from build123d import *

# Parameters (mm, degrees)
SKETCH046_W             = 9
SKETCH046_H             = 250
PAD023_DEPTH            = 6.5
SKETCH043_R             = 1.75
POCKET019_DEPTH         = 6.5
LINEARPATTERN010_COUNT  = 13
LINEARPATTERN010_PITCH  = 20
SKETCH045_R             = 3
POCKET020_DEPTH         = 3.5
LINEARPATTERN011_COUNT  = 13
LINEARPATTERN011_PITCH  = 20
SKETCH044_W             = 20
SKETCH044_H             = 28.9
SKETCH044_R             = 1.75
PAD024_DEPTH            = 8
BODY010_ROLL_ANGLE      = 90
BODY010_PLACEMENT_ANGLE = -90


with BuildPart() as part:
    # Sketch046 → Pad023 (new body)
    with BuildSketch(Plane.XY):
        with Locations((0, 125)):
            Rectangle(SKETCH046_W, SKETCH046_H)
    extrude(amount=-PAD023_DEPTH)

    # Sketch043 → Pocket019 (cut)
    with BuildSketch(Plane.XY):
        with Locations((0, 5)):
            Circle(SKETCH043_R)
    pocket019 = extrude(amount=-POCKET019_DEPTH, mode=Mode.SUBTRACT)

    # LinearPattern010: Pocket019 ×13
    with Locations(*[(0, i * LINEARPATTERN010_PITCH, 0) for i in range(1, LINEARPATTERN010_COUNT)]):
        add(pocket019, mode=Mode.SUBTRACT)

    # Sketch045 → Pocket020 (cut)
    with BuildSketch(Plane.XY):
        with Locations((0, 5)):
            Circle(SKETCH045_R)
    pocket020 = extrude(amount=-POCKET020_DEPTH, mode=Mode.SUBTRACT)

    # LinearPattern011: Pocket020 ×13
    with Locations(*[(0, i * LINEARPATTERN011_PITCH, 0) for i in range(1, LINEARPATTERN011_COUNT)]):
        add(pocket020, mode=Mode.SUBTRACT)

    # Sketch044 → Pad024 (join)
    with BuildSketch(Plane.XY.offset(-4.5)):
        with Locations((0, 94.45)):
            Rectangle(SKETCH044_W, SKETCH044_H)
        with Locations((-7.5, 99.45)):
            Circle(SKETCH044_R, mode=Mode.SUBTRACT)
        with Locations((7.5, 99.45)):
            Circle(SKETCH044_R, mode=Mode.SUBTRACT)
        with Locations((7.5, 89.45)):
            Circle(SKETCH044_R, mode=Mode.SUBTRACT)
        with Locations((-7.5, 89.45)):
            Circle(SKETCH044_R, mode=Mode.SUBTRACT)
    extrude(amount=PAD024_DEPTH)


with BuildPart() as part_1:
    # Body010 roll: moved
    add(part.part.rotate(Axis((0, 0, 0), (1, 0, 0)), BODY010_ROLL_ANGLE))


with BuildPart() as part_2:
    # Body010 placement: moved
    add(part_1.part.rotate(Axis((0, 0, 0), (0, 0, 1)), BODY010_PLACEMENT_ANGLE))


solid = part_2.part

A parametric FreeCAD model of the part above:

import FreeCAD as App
import Part
import Sketcher

V = App.Vector
Q = App.Units.Quantity

doc = App.newDocument("Part")
params = doc.addObject("Spreadsheet::Sheet", "Params")
for row, (alias, value) in enumerate([
    ("sketch1_width", "9 mm"),
    ("sketch1_height", "250 mm"),
    ("pad1_length", "6.5 mm"),
    ("sketch2_diameter", "3.5 mm"),
    ("pocket1_length", "6.5 mm"),
    ("linearpattern_pitch", "20 mm"),
    ("sketch3_diameter", "6 mm"),
    ("pocket2_length", "3.5 mm"),
    ("linearpattern2_pitch", "20 mm"),
    ("sketch4_diameter", "3.5 mm"),
    ("sketch4_width", "20 mm"),
    ("sketch4_height", "28.9 mm"),
    ("pad2_length", "8 mm"),
], start=1):
    params.set(f"A{row}", alias)
    params.set(f"B{row}", "=" + value)
    params.setAlias(f"B{row}", alias)

body = doc.addObject("PartDesign::Body", "Body")

# Sketch on XY plane
sketch1 = body.newObject("Sketcher::SketchObject", "Sketch")
sketch1.AttachmentSupport = (doc.getObject("XY_Plane"), [""])
sketch1.MapMode = "FlatFace"
sketch1.addGeometry([
    Part.LineSegment(V(-4.5, 250, 0), V(-4.5, 0, 0)),
    Part.LineSegment(V(-4.5, 0, 0), V(4.5, 0, 0)),
    Part.LineSegment(V(4.5, 0, 0), V(4.5, 250, 0)),
    Part.LineSegment(V(4.5, 250, 0), V(-4.5, 250, 0)),
], False)
sketch1.addConstraint([
    Sketcher.Constraint("Coincident", 0, 2, 1, 1),
    Sketcher.Constraint("Coincident", 1, 2, 2, 1),
    Sketcher.Constraint("Coincident", 2, 2, 3, 1),
    Sketcher.Constraint("Coincident", 3, 2, 0, 1),
    Sketcher.Constraint("Vertical", 0),
    Sketcher.Constraint("Horizontal", 1),
    Sketcher.Constraint("Vertical", 2),
    Sketcher.Constraint("Horizontal", 3),
    Sketcher.Constraint("Symmetric", 0, 2, 1, 2, -1, 1),
    Sketcher.Constraint("DistanceX", 1, 1, 1, 2, Q("9 mm")),
    Sketcher.Constraint("DistanceY", 0, 2, 0, 1, Q("250 mm")),
])
sketch1.setExpression("Constraints[9]", "Params.sketch1_width")
sketch1.setExpression("Constraints[10]", "Params.sketch1_height")
pad1 = body.newObject("PartDesign::Pad", "Pad")
pad1.Profile = sketch1
pad1.setExpression("Length", "Params.pad1_length")
pad1.Reversed = True

# Sketch on XY plane
sketch2 = body.newObject("Sketcher::SketchObject", "Sketch001")
sketch2.AttachmentSupport = (doc.getObject("XY_Plane"), [""])
sketch2.MapMode = "FlatFace"
sketch2.addGeometry(Part.Circle(V(0, 5, 0), V(0, 0, 1), 1.75), False)
sketch2.addConstraint([
    Sketcher.Constraint("PointOnObject", 0, 3, -2),
    Sketcher.Constraint("Diameter", 0, Q("3.5 mm")),
    Sketcher.Constraint("DistanceY", -1, 1, 0, 3, Q("5 mm")),
])
sketch2.setExpression("Constraints[1]", "Params.sketch2_diameter")
pocket1 = body.newObject("PartDesign::Pocket", "Pocket")
pocket1.Profile = sketch2
pocket1.setExpression("Length", "Params.pocket1_length")
doc.recompute()

linearpattern = body.newObject("PartDesign::LinearPattern", "LinearPattern")
linearpattern.Originals = [pocket1]
linearpattern.Direction = (doc.getObject("Y_Axis"), [""])
linearpattern.Mode = "offset"
linearpattern.setExpression("Offset", "Params.linearpattern_pitch")
linearpattern.Occurrences = 13
body.Tip = linearpattern

# Sketch on XY plane
sketch3 = body.newObject("Sketcher::SketchObject", "Sketch002")
sketch3.AttachmentSupport = (doc.getObject("XY_Plane"), [""])
sketch3.MapMode = "FlatFace"
sketch3.addGeometry(Part.Circle(V(0, 5, 0), V(0, 0, 1), 3), False)
sketch3.addConstraint([
    Sketcher.Constraint("PointOnObject", 0, 3, -2),
    Sketcher.Constraint("Diameter", 0, Q("6 mm")),
    Sketcher.Constraint("DistanceY", -1, 1, 0, 3, Q("5 mm")),
])
sketch3.setExpression("Constraints[1]", "Params.sketch3_diameter")
pocket2 = body.newObject("PartDesign::Pocket", "Pocket001")
pocket2.Profile = sketch3
pocket2.setExpression("Length", "Params.pocket2_length")
doc.recompute()

linearpattern2 = body.newObject("PartDesign::LinearPattern", "LinearPattern001")
linearpattern2.Originals = [pocket2]
linearpattern2.Direction = (doc.getObject("Y_Axis"), [""])
linearpattern2.Mode = "offset"
linearpattern2.setExpression("Offset", "Params.linearpattern2_pitch")
linearpattern2.Occurrences = 13
body.Tip = linearpattern2

# Sketch on XY plane
sketch4 = body.newObject("Sketcher::SketchObject", "Sketch003")
sketch4.AttachmentSupport = (doc.getObject("XY_Plane"), [""])
sketch4.MapMode = "FlatFace"
sketch4.AttachmentOffset = App.Placement(V(0, 0, -4.5), App.Rotation())
sketch4.addGeometry([
    Part.LineSegment(V(-10, 108.9, 0), V(-10, 80, 0)),  # 0
    Part.LineSegment(V(-10, 80, 0), V(10, 80, 0)),  # 1
    Part.LineSegment(V(10, 80, 0), V(10, 108.9, 0)),  # 2
    Part.LineSegment(V(10, 108.9, 0), V(-10, 108.9, 0)),  # 3
    Part.Circle(V(-7.5, 89.45, 0), V(0, 0, 1), 1.75),  # 4
    Part.Circle(V(7.5, 89.45, 0), V(0, 0, 1), 1.75),  # 5
    Part.Circle(V(-7.5, 99.45, 0), V(0, 0, 1), 1.75),  # 6
    Part.Circle(V(7.5, 99.45, 0), V(0, 0, 1), 1.75),  # 7
], False)
sketch4.addConstraint([
    Sketcher.Constraint("Coincident", 0, 2, 1, 1),
    Sketcher.Constraint("Coincident", 1, 2, 2, 1),
    Sketcher.Constraint("Coincident", 2, 2, 3, 1),
    Sketcher.Constraint("Coincident", 3, 2, 0, 1),
    Sketcher.Constraint("Vertical", 0),
    Sketcher.Constraint("Horizontal", 1),
    Sketcher.Constraint("Vertical", 2),
    Sketcher.Constraint("Horizontal", 3),
    Sketcher.Constraint("Equal", 4, 5),
    Sketcher.Constraint("Equal", 5, 6),
    Sketcher.Constraint("Equal", 6, 7),
    Sketcher.Constraint("Symmetric", 4, 3, 5, 3, -2),
    Sketcher.Constraint("Symmetric", 6, 3, 7, 3, -2),
    Sketcher.Constraint("Vertical", 4, 3, 6, 3),
    Sketcher.Constraint("Diameter", 4, Q("3.5 mm")),
    Sketcher.Constraint("DistanceX", 1, 1, 1, 2, Q("20 mm")),
    Sketcher.Constraint("DistanceY", 0, 2, 0, 1, Q("28.9 mm")),
    Sketcher.Constraint("DistanceX", 0, 2, -1, 1, Q("10 mm")),
    Sketcher.Constraint("DistanceY", -1, 1, 0, 2, Q("80 mm")),
    Sketcher.Constraint("DistanceX", 4, 3, 5, 3, Q("15 mm")),
    Sketcher.Constraint("DistanceY", 4, 3, 6, 3, Q("10 mm")),
    Sketcher.Constraint("DistanceY", -1, 1, 4, 3, Q("89.45 mm")),
])
sketch4.setExpression("Constraints[14]", "Params.sketch4_diameter")
sketch4.setExpression("Constraints[15]", "Params.sketch4_width")
sketch4.setExpression("Constraints[16]", "Params.sketch4_height")
pad2 = body.newObject("PartDesign::Pad", "Pad001")
pad2.Profile = sketch4
pad2.setExpression("Length", "Params.pad2_length")
body2 = doc.addObject("PartDesign::Body", "Body001")
doc.recompute()

body.Placement = App.Placement(V(0, 0, 0), App.Rotation(V(1, 0, 0), 90))
boolean = body2.newObject("PartDesign::Boolean", "Boolean")
boolean.Type = "Fuse"
boolean.addObjects([body])
body3 = doc.addObject("PartDesign::Body", "Body002")
doc.recompute()

body2.Placement = App.Placement(V(0, 0, 0), App.Rotation(V(0, 0, 1), 270))
boolean2 = body3.newObject("PartDesign::Boolean", "Boolean001")
boolean2.Type = "Fuse"
boolean2.addObjects([body2])

doc.recompute()
